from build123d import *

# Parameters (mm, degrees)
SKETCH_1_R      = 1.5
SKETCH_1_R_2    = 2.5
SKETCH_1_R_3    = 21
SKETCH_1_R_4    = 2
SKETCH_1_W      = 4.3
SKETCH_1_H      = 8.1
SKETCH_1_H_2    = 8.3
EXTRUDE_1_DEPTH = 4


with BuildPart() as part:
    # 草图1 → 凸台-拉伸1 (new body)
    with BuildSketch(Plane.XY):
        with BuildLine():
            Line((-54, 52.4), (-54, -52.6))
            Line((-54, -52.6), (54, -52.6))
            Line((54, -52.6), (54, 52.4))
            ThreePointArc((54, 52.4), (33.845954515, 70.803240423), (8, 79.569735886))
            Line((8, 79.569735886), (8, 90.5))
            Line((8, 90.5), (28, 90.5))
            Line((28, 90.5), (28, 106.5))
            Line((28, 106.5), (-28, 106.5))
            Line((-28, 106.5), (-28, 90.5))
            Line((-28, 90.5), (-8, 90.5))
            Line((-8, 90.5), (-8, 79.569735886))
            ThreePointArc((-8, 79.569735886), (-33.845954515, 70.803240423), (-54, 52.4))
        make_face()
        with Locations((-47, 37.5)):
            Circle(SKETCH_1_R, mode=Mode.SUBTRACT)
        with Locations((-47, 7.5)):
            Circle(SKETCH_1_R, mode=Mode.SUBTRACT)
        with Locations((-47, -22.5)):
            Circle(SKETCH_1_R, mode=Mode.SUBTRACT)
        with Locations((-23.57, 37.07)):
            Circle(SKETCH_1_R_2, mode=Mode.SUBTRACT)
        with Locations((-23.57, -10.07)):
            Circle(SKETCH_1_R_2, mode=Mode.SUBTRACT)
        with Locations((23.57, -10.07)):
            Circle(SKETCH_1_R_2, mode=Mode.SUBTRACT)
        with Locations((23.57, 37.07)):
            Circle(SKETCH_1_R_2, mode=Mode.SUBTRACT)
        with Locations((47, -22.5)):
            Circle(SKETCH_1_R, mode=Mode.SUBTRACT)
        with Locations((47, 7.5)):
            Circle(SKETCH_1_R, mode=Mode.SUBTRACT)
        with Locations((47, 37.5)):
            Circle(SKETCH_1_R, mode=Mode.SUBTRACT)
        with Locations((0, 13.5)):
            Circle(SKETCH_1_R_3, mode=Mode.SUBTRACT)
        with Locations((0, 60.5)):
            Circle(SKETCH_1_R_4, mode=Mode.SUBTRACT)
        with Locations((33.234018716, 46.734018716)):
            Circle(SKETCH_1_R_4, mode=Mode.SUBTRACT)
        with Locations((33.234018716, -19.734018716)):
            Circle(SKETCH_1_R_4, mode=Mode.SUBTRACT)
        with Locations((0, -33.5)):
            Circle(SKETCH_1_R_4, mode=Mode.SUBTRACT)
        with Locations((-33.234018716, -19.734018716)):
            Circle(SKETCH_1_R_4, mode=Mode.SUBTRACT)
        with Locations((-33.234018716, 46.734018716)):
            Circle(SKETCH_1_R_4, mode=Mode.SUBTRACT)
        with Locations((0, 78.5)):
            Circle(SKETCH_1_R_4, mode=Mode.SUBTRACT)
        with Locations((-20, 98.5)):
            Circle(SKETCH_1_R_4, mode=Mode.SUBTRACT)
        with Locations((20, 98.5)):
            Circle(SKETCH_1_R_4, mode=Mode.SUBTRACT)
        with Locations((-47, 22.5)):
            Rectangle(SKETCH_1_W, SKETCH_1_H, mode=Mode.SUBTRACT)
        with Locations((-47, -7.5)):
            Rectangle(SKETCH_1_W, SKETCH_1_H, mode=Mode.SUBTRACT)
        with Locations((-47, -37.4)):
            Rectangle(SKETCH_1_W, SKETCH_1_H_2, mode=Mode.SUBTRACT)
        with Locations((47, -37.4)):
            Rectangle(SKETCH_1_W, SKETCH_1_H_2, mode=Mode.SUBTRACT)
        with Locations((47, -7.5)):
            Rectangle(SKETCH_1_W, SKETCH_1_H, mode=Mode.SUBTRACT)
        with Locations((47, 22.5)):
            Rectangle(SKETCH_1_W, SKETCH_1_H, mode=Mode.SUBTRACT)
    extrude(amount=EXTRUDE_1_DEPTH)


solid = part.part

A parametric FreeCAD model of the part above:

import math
import FreeCAD as App
import Part
import Sketcher

V = App.Vector

doc = App.newDocument("Part")
body = doc.addObject("PartDesign::Body", "Body")

sketch1 = doc.addObject("Sketcher::SketchObject", "Sketch")
body.addObject(sketch1)
sketch1.AttachmentSupport = (doc.XY_Plane, [""])
sketch1.MapMode = "FlatFace"
sketch1.addGeometry([
    Part.LineSegment(V(-54, 52.4, 0), V(-54, -52.6, 0)),
    Part.LineSegment(V(-54, -52.6, 0), V(54, -52.6, 0)),
    Part.LineSegment(V(54, -52.6, 0), V(54, 52.4, 0)),
    Part.ArcOfCircle(Part.Circle(V(0, 13.5, 0), V(0, 0, 1), 66.6), math.radians(36), math.radians(83)),
    Part.LineSegment(V(8, 79.6, 0), V(8, 90.5, 0)),
    Part.LineSegment(V(8, 90.5, 0), V(28, 90.5, 0)),
    Part.LineSegment(V(28, 90.5, 0), V(28, 106.5, 0)),
    Part.LineSegment(V(28, 106.5, 0), V(-28, 106.5, 0)),
    Part.LineSegment(V(-28, 106.5, 0), V(-28, 90.5, 0)),
    Part.LineSegment(V(-28, 90.5, 0), V(-8, 90.5, 0)),
    Part.LineSegment(V(-8, 90.5, 0), V(-8, 79.6, 0)),
    Part.ArcOfCircle(Part.Circle(V(0, 13.5, 0), V(0, 0, 1), 66.6), math.radians(97), math.radians(144)),
    Part.LineSegment(V(-44.9, -41.5, 0), V(-49.1, -41.5, 0)),
    Part.LineSegment(V(-49.1, -41.5, 0), V(-49.1, -33.2, 0)),
    Part.LineSegment(V(-49.1, -33.2, 0), V(-44.9, -33.2, 0)),
    Part.LineSegment(V(-44.9, -33.2, 0), V(-44.9, -41.5, 0)),
    Part.Circle(V(-47, -22.5, 0), V(0, 0, 1), 1.5),
    Part.LineSegment(V(-44.9, -11.6, 0), V(-49.1, -11.6, 0)),
    Part.LineSegment(V(-49.1, -11.6, 0), V(-49.1, -3.5, 0)),
    Part.LineSegment(V(-49.1, -3.5, 0), V(-44.9, -3.5, 0)),
    Part.LineSegment(V(-44.9, -3.5, 0), V(-44.9, -11.6, 0)),
    Part.Circle(V(-33.2, -19.7, 0), V(0, 0, 1), 2),
    Part.Circle(V(-23.6, -10.1, 0), V(0, 0, 1), 2.5),
    Part.Circle(V(-47, 7.5, 0), V(0, 0, 1), 1.5),
    Part.LineSegment(V(-44.9, 18.4, 0), V(-49.1, 18.4, 0)),
    Part.LineSegment(V(-49.1, 18.4, 0), V(-49.1, 26.6, 0)),
    Part.LineSegment(V(-49.1, 26.6, 0), V(-44.9, 26.6, 0)),
    Part.LineSegment(V(-44.9, 26.6, 0), V(-44.9, 18.4, 0)),
    Part.Circle(V(0, -33.5, 0), V(0, 0, 1), 2),
    Part.Circle(V(23.6, -10.1, 0), V(0, 0, 1), 2.5),
    Part.LineSegment(V(49.1, -41.5, 0), V(44.9, -41.5, 0)),
    Part.LineSegment(V(44.9, -41.5, 0), V(44.9, -33.2, 0)),
    Part.LineSegment(V(44.9, -33.2, 0), V(49.1, -33.2, 0)),
    Part.LineSegment(V(49.1, -33.2, 0), V(49.1, -41.5, 0)),
    Part.Circle(V(33.2, -19.7, 0), V(0, 0, 1), 2),
    Part.Circle(V(47, -22.5, 0), V(0, 0, 1), 1.5),
    Part.LineSegment(V(49.1, -11.6, 0), V(44.9, -11.6, 0)),
    Part.LineSegment(V(44.9, -11.6, 0), V(44.9, -3.5, 0)),
    Part.LineSegment(V(44.9, -3.5, 0), V(49.1, -3.5, 0)),
    Part.LineSegment(V(49.1, -3.5, 0), V(49.1, -11.6, 0)),
    Part.Circle(V(0, 13.5, 0), V(0, 0, 1), 21),
    Part.Circle(V(47, 7.5, 0), V(0, 0, 1), 1.5),
    Part.LineSegment(V(49.1, 18.4, 0), V(44.9, 18.4, 0)),
    Part.LineSegment(V(44.9, 18.4, 0), V(44.9, 26.6, 0)),
    Part.LineSegment(V(44.9, 26.6, 0), V(49.1, 26.6, 0)),
    Part.LineSegment(V(49.1, 26.6, 0), V(49.1, 18.4, 0)),
    Part.Circle(V(-47, 37.5, 0), V(0, 0, 1), 1.5),
    Part.Circle(V(-33.2, 46.7, 0), V(0, 0, 1), 2),
    Part.Circle(V(-23.6, 37.1, 0), V(0, 0, 1), 2.5),
    Part.Circle(V(-20, 98.5, 0), V(0, 0, 1), 2),
    Part.Circle(V(23.6, 37.1, 0), V(0, 0, 1), 2.5),
    Part.Circle(V(0, 60.5, 0), V(0, 0, 1), 2),
    Part.Circle(V(33.2, 46.7, 0), V(0, 0, 1), 2),
    Part.Circle(V(47, 37.5, 0), V(0, 0, 1), 1.5),
    Part.Circle(V(0, 78.5, 0), V(0, 0, 1), 2),
    Part.Circle(V(20, 98.5, 0), V(0, 0, 1), 2),
], False)
sketch1.addConstraint([
    Sketcher.Constraint("Coincident", 0, 2, 1, 1),
    Sketcher.Constraint("Coincident", 1, 2, 2, 1),
    Sketcher.Constraint("Coincident", 2, 2, 3, 1),
    Sketcher.Constraint("Coincident", 3, 2, 4, 1),
    Sketcher.Constraint("Coincident", 4, 2, 5, 1),
    Sketcher.Constraint("Coincident", 5, 2, 6, 1),
    Sketcher.Constraint("Coincident", 6, 2, 7, 1),
    Sketcher.Constraint("Coincident", 7, 2, 8, 1),
    Sketcher.Constraint("Coincident", 8, 2, 9, 1),
    Sketcher.Constraint("Coincident", 9, 2, 10, 1),
    Sketcher.Constraint("Coincident", 10, 2, 11, 1),
    Sketcher.Constraint("Coincident", 11, 2, 0, 1),
    Sketcher.Constraint("Coincident", 12, 2, 13, 1),
    Sketcher.Constraint("Coincident", 13, 2, 14, 1),
    Sketcher.Constraint("Coincident", 14, 2, 15, 1),
    Sketcher.Constraint("Coincident", 15, 2, 12, 1),
    Sketcher.Constraint("Coincident", 17, 2, 18, 1),
    Sketcher.Constraint("Coincident", 18, 2, 19, 1),
    Sketcher.Constraint("Coincident", 19, 2, 20, 1),
    Sketcher.Constraint("Coincident", 20, 2, 17, 1),
    Sketcher.Constraint("Coincident", 24, 2, 25, 1),
    Sketcher.Constraint("Coincident", 25, 2, 26, 1),
    Sketcher.Constraint("Coincident", 26, 2, 27, 1),
    Sketcher.Constraint("Coincident", 27, 2, 24, 1),
    Sketcher.Constraint("Coincident", 30, 2, 31, 1),
    Sketcher.Constraint("Coincident", 31, 2, 32, 1),
    Sketcher.Constraint("Coincident", 32, 2, 33, 1),
    Sketcher.Constraint("Coincident", 33, 2, 30, 1),
    Sketcher.Constraint("Coincident", 36, 2, 37, 1),
    Sketcher.Constraint("Coincident", 37, 2, 38, 1),
    Sketcher.Constraint("Coincident", 38, 2, 39, 1),
    Sketcher.Constraint("Coincident", 39, 2, 36, 1),
    Sketcher.Constraint("Coincident", 42, 2, 43, 1),
    Sketcher.Constraint("Coincident", 43, 2, 44, 1),
    Sketcher.Constraint("Coincident", 44, 2, 45, 1),
    Sketcher.Constraint("Coincident", 45, 2, 42, 1),
    Sketcher.Constraint("Vertical", 0),
    Sketcher.Constraint("Horizontal", 1),
    Sketcher.Constraint("Vertical", 2),
    Sketcher.Constraint("Vertical", 4),
    Sketcher.Constraint("Horizontal", 5),
    Sketcher.Constraint("Vertical", 6),
    Sketcher.Constraint("Horizontal", 7),
    Sketcher.Constraint("Vertical", 8),
    Sketcher.Constraint("Horizontal", 9),
    Sketcher.Constraint("Vertical", 10),
    Sketcher.Constraint("Horizontal", 12),
    Sketcher.Constraint("Vertical", 13),
    Sketcher.Constraint("Horizontal", 14),
    Sketcher.Constraint("Vertical", 15),
    Sketcher.Constraint("Horizontal", 17),
    Sketcher.Constraint("Vertical", 18),
    Sketcher.Constraint("Horizontal", 19),
    Sketcher.Constraint("Vertical", 20),
    Sketcher.Constraint("Horizontal", 24),
    Sketcher.Constraint("Vertical", 25),
    Sketcher.Constraint("Horizontal", 26),
    Sketcher.Constraint("Vertical", 27),
    Sketcher.Constraint("Horizontal", 30),
    Sketcher.Constraint("Vertical", 31),
    Sketcher.Constraint("Horizontal", 32),
    Sketcher.Constraint("Vertical", 33),
    Sketcher.Constraint("Horizontal", 36),
    Sketcher.Constraint("Vertical", 37),
    Sketcher.Constraint("Horizontal", 38),
    Sketcher.Constraint("Vertical", 39),
    Sketcher.Constraint("Horizontal", 42),
    Sketcher.Constraint("Vertical", 43),
    Sketcher.Constraint("Horizontal", 44),
    Sketcher.Constraint("Vertical", 45),
    Sketcher.Constraint("Coincident", 11, 3, 3, 3),
    Sketcher.Constraint("Coincident", 40, 3, 3, 3),
    Sketcher.Constraint("Equal", 3, 11),
    Sketcher.Constraint("Equal", 16, 23),
    Sketcher.Constraint("Equal", 21, 28),
    Sketcher.Constraint("Equal", 22, 29),
    Sketcher.Constraint("Equal", 28, 34),
    Sketcher.Constraint("Equal", 23, 35),
    Sketcher.Constraint("Equal", 35, 41),
    Sketcher.Constraint("Equal", 41, 46),
    Sketcher.Constraint("Equal", 34, 47),
    Sketcher.Constraint("Equal", 29, 48),
    Sketcher.Constraint("Equal", 47, 49),
    Sketcher.Constraint("Equal", 48, 50),
    Sketcher.Constraint("Equal", 49, 51),
    Sketcher.Constraint("Equal", 51, 52),
    Sketcher.Constraint("Equal", 46, 53),
    Sketcher.Constraint("Equal", 52, 54),
    Sketcher.Constraint("Equal", 54, 55),
    Sketcher.Constraint("Symmetric", 22, 3, 29, 3, -2),
    Sketcher.Constraint("Symmetric", 21, 3, 34, 3, -2),
    Sketcher.Constraint("Symmetric", 16, 3, 35, 3, -2),
    Sketcher.Constraint("Symmetric", 23, 3, 41, 3, -2),
    Sketcher.Constraint("Symmetric", 48, 3, 50, 3, -2),
    Sketcher.Constraint("Symmetric", 47, 3, 52, 3, -2),
    Sketcher.Constraint("Symmetric", 46, 3, 53, 3, -2),
    Sketcher.Constraint("Symmetric", 49, 3, 55, 3, -2),
    Sketcher.Constraint("Symmetric", 5, 2, 8, 2, -2),
    Sketcher.Constraint("Symmetric", 3, 2, 10, 2, -2),
    Sketcher.Constraint("Symmetric", 15, 2, 30, 2, -2),
    Sketcher.Constraint("Symmetric", 13, 2, 32, 2, -2),
    Sketcher.Constraint("Symmetric", 20, 2, 36, 2, -2),
    Sketcher.Constraint("Symmetric", 18, 2, 38, 2, -2),
    Sketcher.Constraint("Symmetric", 27, 2, 42, 2, -2),
    Sketcher.Constraint("Symmetric", 25, 2, 44, 2, -2),
    Sketcher.Constraint("PointOnObject", 28, 3, -2),
    Sketcher.Constraint("PointOnObject", 51, 3, -2),
    Sketcher.Constraint("PointOnObject", 54, 3, -2),
    Sketcher.Constraint("Horizontal", 2, 2, 11, 2),
    Sketcher.Constraint("Vertical", 16, 3, 23, 3),
    Sketcher.Constraint("Vertical", 23, 3, 46, 3),
    Sketcher.Constraint("Vertical", 21, 3, 47, 3),
    Sketcher.Constraint("Vertical", 22, 3, 48, 3),
    Sketcher.Constraint("Vertical", 13, 2, 17, 2),
    Sketcher.Constraint("Vertical", 15, 2, 19, 2),
    Sketcher.Constraint("Vertical", 18, 2, 24, 2),
    Sketcher.Constraint("Vertical", 20, 2, 26, 2),
    Sketcher.Constraint("Equal", 20, 25),
    Sketcher.Constraint("Diameter", 16, 3.0),
    Sketcher.Constraint("Diameter", 21, 4.0),
    Sketcher.Constraint("Diameter", 22, 5.0),
    Sketcher.Constraint("Diameter", 40, 42.0),
    Sketcher.Constraint("DistanceX", 1, 1, 1, 2, 108.0),
    Sketcher.Constraint("DistanceX", 5, 1, 5, 2, 20.0),
    Sketcher.Constraint("DistanceX", 7, 2, 7, 1, 56.0),
    Sketcher.Constraint("DistanceY", 0, 2, 0, 1, 105.0),
    Sketcher.Constraint("DistanceY", 6, 1, 6, 2, 16.0),
    Sketcher.Constraint("DistanceX", 12, 2, 12, 1, 4.3),
    Sketcher.Constraint("DistanceY", 13, 1, 13, 2, 8.3),
    Sketcher.Constraint("DistanceY", 18, 1, 18, 2, 8.1),
    Sketcher.Constraint("DistanceX", 16, 3, -1, 1, 47.0),
    Sketcher.Constraint("DistanceX", 49, 3, -1, 1, 20.0),
    Sketcher.Constraint("DistanceY", 16, 3, 3, 3, 36.0),
    Sketcher.Constraint("DistanceY", 16, 3, 23, 3, 30.0),
    Sketcher.Constraint("DistanceY", 28, 3, 3, 3, 47.0),
    Sketcher.Constraint("DistanceY", 23, 3, 46, 3, 30.0),
    Sketcher.Constraint("DistanceY", 46, 3, 49, 3, 61.0),
    Sketcher.Constraint("DistanceY", 51, 3, 49, 3, 38.0),
    Sketcher.Constraint("DistanceY", 51, 3, 54, 3, 18.0),
    Sketcher.Constraint("DistanceY", 54, 3, 4, 2, 12.0),
    Sketcher.Constraint("DistanceY", 17, 2, 24, 2, 30.0),
    Sketcher.Constraint("DistanceY", -1, 1, 3, 3, 13.5),
    Sketcher.Constraint("DistanceY", 0, 2, -1, 1, 52.6),
    Sketcher.Constraint("DistanceY", 13, 2, 17, 2, 21.7),
    Sketcher.Constraint("DistanceX", 22, 3, -1, 1, 23.57),
    Sketcher.Constraint("DistanceY", 22, 3, -1, 1, 10.07),
    Sketcher.Constraint("DistanceY", -1, 1, 48, 3, 37.07),
    Sketcher.Constraint("DistanceX", 12, 2, -1, 1, 49.15),
    Sketcher.Constraint("DistanceY", 12, 2, -1, 1, 41.55),
    Sketcher.Constraint("DistanceX", 21, 3, -1, 1, 33.234019),
    Sketcher.Constraint("DistanceY", 21, 3, -1, 1, 19.734019),
    Sketcher.Constraint("DistanceY", -1, 1, 47, 3, 46.734019),
])
pad1 = doc.addObject("PartDesign::Pad", "Pad")
body.addObject(pad1)
pad1.Profile = sketch1
pad1.Length = 4

doc.recompute()
